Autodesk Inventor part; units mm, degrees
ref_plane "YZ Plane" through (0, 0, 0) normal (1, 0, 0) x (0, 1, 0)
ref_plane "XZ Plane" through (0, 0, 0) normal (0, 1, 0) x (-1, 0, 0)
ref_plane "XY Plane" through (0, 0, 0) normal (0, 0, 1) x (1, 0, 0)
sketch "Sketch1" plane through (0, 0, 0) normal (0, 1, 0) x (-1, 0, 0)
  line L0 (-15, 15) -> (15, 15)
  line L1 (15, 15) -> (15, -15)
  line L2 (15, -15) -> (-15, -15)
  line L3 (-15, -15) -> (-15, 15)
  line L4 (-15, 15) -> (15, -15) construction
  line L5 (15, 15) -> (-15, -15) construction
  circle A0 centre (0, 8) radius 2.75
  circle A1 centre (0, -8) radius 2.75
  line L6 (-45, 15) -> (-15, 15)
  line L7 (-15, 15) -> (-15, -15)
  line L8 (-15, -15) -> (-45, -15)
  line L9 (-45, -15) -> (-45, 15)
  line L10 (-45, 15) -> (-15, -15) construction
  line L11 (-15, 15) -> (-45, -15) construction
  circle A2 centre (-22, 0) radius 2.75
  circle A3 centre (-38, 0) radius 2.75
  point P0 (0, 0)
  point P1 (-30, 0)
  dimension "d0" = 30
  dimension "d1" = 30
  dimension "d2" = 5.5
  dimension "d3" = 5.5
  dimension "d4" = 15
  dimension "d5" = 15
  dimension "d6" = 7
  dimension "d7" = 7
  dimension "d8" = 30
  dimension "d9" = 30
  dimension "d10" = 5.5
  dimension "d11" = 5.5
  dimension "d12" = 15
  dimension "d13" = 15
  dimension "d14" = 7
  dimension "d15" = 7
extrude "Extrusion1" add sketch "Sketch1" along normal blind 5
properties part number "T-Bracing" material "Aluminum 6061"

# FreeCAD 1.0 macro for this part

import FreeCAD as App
import Part
import Sketcher

V = App.Vector
Q = App.Units.Quantity


def add_polygon(sketch, points):
    """Adds a closed chain of lines whose ends are joined by coincident constraints."""
    first, n = sketch.GeometryCount, len(points)
    for a, b in zip(points, points[1:] + points[:1]):
        sketch.addGeometry(Part.LineSegment(App.Vector(*a, 0), App.Vector(*b, 0)), False)
    for i in range(n):
        sketch.addConstraint(Sketcher.Constraint("Coincident", first + i, 2, first + (i + 1) % n, 1))

doc = App.newDocument("Part")
body = doc.addObject("PartDesign::Body", "Body")

sketch1 = body.newObject("Sketcher::SketchObject", "Sketch")
sketch1.AttachmentSupport = (doc.getObject("XZ_Plane"), [""])
sketch1.MapMode = "FlatFace"
add_polygon(sketch1, [(-15, 15), (45, 15), (45, -15), (-15, -15)])
sketch1.addGeometry(Part.Circle(V(0, -8, 0), V(0, 0, 1), 2.75), False)
sketch1.addGeometry(Part.Circle(V(0, 8, 0), V(0, 0, 1), 2.75), False)
sketch1.addGeometry(Part.Circle(V(22, 0, 0), V(0, 0, 1), 2.75), False)
sketch1.addGeometry(Part.Circle(V(38, 0, 0), V(0, 0, 1), 2.75), False)
sketch1.addConstraint(Sketcher.Constraint("Horizontal", 0))
sketch1.addConstraint(Sketcher.Constraint("Vertical", 1))
sketch1.addConstraint(Sketcher.Constraint("Horizontal", 2))
sketch1.addConstraint(Sketcher.Constraint("Vertical", 3))
sketch1.addConstraint(Sketcher.Constraint("Equal", 4, 5))
sketch1.addConstraint(Sketcher.Constraint("Equal", 5, 6))
sketch1.addConstraint(Sketcher.Constraint("Equal", 6, 7))
sketch1.addConstraint(Sketcher.Constraint("Symmetric", 4, 3, 5, 3, -1, 1))
sketch1.addConstraint(Sketcher.Constraint("PointOnObject", 4, 3, -2))
sketch1.addConstraint(Sketcher.Constraint("PointOnObject", 6, 3, -1))
sketch1.addConstraint(Sketcher.Constraint("PointOnObject", 7, 3, -1))
sketch1.addConstraint(Sketcher.Constraint("Diameter", 4, Q("5.5 mm")))
sketch1.addConstraint(Sketcher.Constraint("DistanceY", 1, 2, 1, 1, Q("30 mm")))
sketch1.addConstraint(Sketcher.Constraint("DistanceY", -1, 1, 0, 2, Q("15 mm")))
sketch1.addConstraint(Sketcher.Constraint("DistanceX", 2, 2, -1, 1, Q("15 mm")))
sketch1.addConstraint(Sketcher.Constraint("DistanceX", 7, 3, 0, 2, Q("7 mm")))
sketch1.addConstraint(Sketcher.Constraint("DistanceY", 5, 3, 0, 2, Q("7 mm")))
sketch1.addConstraint(Sketcher.Constraint("DistanceX", 0, 1, 0, 2, Q("60 mm")))
sketch1.addConstraint(Sketcher.Constraint("DistanceX", -1, 1, 6, 3, Q("22 mm")))
pad1 = body.newObject("PartDesign::Pad", "Pad")
pad1.Profile = sketch1
pad1.Length = 5
pad1.Reversed = True

doc.recompute()
